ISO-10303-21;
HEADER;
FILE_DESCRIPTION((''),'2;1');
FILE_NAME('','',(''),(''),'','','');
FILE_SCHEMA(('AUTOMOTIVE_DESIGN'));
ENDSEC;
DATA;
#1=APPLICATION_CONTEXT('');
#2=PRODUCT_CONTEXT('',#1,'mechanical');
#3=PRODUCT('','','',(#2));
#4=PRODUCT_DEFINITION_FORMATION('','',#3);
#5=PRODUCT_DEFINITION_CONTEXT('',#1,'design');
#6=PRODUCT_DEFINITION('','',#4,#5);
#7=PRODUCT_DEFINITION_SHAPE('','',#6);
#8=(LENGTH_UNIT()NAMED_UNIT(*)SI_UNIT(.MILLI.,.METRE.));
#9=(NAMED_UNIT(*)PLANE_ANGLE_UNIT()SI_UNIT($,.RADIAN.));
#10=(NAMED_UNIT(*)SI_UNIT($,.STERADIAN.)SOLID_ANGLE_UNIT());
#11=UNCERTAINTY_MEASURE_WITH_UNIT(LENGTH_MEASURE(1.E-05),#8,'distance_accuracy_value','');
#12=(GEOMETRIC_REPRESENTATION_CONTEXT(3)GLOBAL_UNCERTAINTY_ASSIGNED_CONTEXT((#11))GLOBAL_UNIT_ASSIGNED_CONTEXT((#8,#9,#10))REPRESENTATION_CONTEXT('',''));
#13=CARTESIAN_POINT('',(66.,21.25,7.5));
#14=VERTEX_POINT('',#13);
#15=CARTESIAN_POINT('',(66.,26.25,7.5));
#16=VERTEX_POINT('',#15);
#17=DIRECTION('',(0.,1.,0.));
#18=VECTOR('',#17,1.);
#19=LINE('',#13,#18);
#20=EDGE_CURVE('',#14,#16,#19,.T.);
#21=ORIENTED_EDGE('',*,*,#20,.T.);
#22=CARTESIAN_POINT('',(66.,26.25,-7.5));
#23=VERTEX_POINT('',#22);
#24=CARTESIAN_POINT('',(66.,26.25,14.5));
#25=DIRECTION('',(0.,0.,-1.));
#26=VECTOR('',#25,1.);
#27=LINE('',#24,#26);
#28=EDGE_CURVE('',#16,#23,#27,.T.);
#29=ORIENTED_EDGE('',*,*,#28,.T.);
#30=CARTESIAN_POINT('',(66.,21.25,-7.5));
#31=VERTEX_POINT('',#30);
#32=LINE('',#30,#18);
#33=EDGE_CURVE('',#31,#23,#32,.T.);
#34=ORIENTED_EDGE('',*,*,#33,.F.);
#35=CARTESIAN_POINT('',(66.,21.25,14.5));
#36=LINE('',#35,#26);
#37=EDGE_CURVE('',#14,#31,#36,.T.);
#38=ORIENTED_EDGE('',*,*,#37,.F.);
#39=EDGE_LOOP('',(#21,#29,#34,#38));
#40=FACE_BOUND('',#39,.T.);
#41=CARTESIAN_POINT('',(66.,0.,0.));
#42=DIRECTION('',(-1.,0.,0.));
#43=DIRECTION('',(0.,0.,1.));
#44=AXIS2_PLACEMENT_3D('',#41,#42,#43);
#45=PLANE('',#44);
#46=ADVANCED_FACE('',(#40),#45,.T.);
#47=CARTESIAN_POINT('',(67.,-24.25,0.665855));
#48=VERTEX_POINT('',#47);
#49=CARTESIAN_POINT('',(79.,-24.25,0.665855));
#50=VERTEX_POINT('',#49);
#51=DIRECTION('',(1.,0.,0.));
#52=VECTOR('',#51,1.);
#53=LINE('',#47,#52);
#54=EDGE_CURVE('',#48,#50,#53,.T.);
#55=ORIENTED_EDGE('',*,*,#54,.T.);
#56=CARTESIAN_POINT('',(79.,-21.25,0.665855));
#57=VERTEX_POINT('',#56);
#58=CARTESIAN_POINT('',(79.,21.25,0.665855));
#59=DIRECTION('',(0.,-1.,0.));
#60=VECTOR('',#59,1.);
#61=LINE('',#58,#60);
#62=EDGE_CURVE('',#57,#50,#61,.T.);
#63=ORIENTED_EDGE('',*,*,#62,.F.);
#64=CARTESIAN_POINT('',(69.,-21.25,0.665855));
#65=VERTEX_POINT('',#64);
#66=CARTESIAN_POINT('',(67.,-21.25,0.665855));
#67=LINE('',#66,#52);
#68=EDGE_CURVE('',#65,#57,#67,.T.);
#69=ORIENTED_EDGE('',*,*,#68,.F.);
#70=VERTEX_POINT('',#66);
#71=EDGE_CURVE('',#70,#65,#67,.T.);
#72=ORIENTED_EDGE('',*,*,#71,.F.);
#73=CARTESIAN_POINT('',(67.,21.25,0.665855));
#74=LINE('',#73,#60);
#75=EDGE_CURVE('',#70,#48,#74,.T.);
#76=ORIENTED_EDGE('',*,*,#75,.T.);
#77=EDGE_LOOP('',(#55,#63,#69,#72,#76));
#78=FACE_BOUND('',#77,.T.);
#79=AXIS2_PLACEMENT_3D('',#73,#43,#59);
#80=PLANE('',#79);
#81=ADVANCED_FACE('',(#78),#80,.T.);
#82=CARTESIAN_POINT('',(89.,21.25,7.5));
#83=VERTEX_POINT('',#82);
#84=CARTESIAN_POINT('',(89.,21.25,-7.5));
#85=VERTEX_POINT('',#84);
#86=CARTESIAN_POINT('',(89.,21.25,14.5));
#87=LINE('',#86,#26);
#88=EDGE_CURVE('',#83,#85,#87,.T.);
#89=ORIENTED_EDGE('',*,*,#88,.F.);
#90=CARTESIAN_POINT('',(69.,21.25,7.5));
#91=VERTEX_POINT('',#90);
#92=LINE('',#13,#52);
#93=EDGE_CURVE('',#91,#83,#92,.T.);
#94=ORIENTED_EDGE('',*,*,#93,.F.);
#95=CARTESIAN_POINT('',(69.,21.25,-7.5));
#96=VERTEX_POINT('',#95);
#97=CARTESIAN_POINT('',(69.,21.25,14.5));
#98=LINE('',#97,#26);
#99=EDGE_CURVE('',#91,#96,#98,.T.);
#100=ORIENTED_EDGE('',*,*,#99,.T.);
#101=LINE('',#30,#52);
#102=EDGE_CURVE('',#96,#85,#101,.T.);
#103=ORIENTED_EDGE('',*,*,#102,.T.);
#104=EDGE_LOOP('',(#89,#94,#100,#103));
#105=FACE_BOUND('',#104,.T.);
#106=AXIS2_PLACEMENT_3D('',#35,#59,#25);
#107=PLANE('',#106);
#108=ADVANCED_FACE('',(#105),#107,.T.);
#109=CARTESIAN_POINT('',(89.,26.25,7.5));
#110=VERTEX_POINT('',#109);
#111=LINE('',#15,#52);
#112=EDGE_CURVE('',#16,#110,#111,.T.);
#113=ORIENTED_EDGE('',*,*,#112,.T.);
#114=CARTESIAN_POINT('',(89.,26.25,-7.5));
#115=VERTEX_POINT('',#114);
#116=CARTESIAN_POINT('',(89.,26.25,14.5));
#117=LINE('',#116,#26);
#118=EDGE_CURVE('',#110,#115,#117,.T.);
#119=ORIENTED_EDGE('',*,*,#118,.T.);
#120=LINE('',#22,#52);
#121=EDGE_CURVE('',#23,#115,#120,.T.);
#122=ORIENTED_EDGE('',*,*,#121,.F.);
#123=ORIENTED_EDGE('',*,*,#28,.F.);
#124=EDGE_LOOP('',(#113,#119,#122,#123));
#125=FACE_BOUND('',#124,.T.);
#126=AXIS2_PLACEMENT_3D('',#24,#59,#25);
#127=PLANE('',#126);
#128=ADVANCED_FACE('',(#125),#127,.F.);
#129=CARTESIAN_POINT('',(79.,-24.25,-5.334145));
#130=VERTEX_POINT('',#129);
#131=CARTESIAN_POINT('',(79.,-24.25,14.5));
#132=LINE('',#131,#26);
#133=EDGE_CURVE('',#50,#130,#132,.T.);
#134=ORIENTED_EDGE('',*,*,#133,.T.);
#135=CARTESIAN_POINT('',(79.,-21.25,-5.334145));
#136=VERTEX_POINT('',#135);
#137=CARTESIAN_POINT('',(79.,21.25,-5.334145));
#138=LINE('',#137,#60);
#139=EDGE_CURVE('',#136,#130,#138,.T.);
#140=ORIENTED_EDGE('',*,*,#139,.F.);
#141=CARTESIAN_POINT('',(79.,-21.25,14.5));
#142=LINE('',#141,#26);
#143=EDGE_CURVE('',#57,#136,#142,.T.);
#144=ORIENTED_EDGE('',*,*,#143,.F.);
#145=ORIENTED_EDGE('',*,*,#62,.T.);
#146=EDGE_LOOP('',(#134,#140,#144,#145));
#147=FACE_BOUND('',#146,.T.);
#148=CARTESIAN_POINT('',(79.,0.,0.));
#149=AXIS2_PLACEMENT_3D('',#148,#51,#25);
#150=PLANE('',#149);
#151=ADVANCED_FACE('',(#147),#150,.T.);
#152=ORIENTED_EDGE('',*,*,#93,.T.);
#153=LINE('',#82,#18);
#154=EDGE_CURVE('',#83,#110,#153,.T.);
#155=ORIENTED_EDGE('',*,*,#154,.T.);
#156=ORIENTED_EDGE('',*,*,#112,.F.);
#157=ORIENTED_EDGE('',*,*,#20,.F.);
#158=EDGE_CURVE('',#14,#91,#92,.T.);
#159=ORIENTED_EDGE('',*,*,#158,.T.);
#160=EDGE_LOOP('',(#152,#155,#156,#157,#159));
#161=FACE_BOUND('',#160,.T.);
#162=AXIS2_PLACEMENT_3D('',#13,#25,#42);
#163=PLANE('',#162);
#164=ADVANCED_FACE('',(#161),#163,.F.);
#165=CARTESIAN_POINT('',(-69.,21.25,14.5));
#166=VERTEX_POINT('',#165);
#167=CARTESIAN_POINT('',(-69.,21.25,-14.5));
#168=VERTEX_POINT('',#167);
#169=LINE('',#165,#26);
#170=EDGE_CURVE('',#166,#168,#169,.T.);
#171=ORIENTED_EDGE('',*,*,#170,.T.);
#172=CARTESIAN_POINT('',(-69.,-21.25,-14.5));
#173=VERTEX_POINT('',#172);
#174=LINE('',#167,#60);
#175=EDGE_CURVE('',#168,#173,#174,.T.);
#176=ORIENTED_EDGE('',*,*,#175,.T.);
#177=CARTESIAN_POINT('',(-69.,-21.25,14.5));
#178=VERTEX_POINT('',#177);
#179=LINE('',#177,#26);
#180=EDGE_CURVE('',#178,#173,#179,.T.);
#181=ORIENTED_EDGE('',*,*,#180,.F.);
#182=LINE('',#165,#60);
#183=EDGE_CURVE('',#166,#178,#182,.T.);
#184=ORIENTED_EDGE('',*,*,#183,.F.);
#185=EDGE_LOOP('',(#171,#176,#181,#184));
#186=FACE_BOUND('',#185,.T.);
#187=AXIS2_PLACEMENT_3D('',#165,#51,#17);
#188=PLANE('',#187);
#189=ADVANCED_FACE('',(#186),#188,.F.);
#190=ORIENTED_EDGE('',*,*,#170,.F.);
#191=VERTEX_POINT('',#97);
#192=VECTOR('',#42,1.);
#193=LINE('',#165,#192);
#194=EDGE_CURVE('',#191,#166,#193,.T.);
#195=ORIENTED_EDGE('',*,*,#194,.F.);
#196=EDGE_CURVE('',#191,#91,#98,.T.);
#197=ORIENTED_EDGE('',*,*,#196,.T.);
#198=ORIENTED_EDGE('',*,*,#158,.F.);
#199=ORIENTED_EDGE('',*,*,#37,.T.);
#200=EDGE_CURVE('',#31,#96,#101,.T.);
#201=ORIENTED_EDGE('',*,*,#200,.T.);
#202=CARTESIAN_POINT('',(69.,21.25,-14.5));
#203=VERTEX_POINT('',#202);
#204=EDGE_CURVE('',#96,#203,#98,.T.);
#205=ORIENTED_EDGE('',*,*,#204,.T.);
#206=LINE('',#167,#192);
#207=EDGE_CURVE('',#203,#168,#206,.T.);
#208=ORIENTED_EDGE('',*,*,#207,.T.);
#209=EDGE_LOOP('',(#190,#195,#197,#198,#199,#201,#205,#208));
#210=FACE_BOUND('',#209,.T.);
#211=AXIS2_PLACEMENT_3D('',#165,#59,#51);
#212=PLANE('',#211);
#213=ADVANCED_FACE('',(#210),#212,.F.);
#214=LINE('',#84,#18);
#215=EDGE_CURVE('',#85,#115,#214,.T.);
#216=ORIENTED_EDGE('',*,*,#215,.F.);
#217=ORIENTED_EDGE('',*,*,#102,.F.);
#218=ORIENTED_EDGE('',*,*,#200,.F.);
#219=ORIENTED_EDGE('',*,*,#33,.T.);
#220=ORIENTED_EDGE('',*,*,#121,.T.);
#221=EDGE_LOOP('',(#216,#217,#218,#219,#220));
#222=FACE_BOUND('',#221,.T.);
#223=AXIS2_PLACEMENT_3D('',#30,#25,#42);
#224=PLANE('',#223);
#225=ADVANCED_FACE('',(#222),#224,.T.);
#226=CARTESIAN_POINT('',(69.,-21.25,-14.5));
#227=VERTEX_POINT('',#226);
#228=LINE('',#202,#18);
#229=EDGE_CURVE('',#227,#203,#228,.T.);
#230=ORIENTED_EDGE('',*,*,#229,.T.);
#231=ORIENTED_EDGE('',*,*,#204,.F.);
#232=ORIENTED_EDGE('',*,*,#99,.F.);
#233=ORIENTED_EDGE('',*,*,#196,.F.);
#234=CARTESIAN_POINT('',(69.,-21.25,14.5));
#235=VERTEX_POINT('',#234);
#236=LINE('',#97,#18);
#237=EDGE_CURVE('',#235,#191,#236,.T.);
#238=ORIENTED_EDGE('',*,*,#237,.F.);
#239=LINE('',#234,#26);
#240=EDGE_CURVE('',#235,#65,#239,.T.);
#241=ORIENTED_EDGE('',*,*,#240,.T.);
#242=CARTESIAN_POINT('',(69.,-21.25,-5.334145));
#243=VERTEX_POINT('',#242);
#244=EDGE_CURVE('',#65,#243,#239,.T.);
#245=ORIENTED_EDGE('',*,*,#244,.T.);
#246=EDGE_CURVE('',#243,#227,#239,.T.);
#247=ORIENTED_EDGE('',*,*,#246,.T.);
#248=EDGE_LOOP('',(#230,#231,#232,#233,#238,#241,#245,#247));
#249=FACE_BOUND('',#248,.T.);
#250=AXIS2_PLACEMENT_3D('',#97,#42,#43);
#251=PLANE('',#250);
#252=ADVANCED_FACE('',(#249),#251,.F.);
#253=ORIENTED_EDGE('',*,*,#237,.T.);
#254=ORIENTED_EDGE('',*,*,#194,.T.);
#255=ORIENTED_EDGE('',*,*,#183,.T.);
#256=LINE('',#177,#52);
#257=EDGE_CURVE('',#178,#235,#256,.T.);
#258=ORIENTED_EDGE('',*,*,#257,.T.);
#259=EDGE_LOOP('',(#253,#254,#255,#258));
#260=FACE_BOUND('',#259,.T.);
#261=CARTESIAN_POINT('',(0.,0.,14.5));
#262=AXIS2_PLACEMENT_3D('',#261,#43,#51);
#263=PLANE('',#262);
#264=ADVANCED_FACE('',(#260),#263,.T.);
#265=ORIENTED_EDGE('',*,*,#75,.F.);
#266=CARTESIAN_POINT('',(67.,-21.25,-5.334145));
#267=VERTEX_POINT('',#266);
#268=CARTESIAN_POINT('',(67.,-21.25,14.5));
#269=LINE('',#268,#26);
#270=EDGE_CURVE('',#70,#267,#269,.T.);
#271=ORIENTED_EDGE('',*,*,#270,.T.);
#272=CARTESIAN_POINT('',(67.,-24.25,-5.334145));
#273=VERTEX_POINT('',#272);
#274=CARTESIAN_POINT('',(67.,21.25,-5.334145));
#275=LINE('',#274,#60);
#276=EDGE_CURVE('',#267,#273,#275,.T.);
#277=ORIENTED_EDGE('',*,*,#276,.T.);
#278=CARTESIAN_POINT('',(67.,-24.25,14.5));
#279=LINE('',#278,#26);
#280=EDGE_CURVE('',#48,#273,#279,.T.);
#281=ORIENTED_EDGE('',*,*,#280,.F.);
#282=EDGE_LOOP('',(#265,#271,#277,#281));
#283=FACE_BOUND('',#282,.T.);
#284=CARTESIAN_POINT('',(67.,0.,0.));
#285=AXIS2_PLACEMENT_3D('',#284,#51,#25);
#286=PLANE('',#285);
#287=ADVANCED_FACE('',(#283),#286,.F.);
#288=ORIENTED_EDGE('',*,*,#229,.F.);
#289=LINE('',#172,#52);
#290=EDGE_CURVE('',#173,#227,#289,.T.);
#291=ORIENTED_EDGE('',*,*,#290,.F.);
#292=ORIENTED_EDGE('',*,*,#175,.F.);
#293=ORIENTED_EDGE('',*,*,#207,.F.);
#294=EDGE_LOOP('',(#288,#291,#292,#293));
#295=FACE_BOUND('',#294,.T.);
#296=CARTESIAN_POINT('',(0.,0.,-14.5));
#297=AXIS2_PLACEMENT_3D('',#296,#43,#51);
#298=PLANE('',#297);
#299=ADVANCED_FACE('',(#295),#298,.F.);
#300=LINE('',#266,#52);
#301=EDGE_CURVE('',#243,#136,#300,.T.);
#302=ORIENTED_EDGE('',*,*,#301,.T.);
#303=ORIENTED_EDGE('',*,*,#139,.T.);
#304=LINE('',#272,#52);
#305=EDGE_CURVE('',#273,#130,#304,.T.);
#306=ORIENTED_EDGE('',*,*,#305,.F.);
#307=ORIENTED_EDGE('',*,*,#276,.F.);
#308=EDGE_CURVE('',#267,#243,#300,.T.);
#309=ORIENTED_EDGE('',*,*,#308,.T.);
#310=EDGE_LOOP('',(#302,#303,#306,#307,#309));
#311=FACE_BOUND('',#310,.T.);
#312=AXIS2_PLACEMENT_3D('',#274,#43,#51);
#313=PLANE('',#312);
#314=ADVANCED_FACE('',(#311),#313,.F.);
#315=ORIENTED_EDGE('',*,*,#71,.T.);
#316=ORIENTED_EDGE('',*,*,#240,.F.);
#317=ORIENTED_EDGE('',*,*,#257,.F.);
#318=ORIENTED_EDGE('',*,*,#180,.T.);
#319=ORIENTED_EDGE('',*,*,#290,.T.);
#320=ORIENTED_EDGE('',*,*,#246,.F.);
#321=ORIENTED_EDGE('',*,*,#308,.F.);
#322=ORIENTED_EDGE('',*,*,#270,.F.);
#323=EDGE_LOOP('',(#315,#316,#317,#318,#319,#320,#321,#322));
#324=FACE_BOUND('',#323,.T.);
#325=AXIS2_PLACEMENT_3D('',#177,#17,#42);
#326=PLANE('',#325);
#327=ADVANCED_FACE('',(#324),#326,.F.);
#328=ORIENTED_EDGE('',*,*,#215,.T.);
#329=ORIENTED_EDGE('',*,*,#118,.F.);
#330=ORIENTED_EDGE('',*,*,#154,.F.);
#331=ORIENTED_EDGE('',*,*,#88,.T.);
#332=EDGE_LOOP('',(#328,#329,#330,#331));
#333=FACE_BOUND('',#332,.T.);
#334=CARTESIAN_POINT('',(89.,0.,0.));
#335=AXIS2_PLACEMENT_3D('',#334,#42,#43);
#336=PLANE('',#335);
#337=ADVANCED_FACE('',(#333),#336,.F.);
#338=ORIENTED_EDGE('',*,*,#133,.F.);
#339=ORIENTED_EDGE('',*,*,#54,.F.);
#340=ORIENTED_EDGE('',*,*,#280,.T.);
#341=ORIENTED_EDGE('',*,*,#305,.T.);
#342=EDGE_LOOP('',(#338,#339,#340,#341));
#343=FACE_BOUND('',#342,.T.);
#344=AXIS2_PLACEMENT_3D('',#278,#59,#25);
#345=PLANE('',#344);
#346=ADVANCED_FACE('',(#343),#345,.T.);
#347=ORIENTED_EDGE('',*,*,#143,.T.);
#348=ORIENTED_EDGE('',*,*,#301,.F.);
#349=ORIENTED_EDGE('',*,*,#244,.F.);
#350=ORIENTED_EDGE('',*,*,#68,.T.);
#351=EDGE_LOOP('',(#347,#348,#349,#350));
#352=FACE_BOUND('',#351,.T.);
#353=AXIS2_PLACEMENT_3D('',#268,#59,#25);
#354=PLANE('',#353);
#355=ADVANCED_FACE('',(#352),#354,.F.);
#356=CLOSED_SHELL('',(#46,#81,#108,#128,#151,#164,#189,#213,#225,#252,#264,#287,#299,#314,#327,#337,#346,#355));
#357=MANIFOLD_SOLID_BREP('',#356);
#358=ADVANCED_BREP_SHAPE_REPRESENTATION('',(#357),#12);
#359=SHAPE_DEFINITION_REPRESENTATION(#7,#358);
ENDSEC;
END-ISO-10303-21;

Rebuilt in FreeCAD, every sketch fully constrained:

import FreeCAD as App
import Part
import Sketcher
from FreeCAD import Vector

doc = App.newDocument("Part")
body = doc.addObject("PartDesign::Body", "Body")

# Sketch on XY plane
sketch1 = body.newObject("Sketcher::SketchObject", "Sketch")
sketch1.AttachmentSupport = (doc.getObject("XY_Plane"), [""])
sketch1.MapMode = "FlatFace"
sketch1.addGeometry(Part.LineSegment(Vector(-69, 21, 0), Vector(-69, -21, 0)), False)
sketch1.addGeometry(Part.LineSegment(Vector(-69, -21, 0), Vector(69, -21, 0)), False)
sketch1.addGeometry(Part.LineSegment(Vector(69, -21, 0), Vector(69, 21, 0)), False)
sketch1.addGeometry(Part.LineSegment(Vector(69, 21, 0), Vector(-69, 21, 0)), False)
sketch1.addConstraint(Sketcher.Constraint("Coincident", 0, 2, 1, 1))
sketch1.addConstraint(Sketcher.Constraint("Coincident", 1, 2, 2, 1))
sketch1.addConstraint(Sketcher.Constraint("Coincident", 2, 2, 3, 1))
sketch1.addConstraint(Sketcher.Constraint("Coincident", 3, 2, 0, 1))
sketch1.addConstraint(Sketcher.Constraint("Vertical", 0))
sketch1.addConstraint(Sketcher.Constraint("Horizontal", 1))
sketch1.addConstraint(Sketcher.Constraint("Vertical", 2))
sketch1.addConstraint(Sketcher.Constraint("Horizontal", 3))
sketch1.addConstraint(Sketcher.Constraint("Symmetric", 0, 2, 2, 2, -1, 1))
sketch1.addConstraint(Sketcher.Constraint("DistanceX", 1, 1, 1, 2, 138.0))
sketch1.addConstraint(Sketcher.Constraint("DistanceY", 0, 2, 0, 1, 42.5))
pad1 = body.newObject("PartDesign::Pad", "Pad")
pad1.Profile = sketch1
pad1.Length = 29
pad1.Midplane = True

# Sketch on YZ plane
sketch2 = body.newObject("Sketcher::SketchObject", "Sketch001")
sketch2.AttachmentSupport = (doc.getObject("YZ_Plane"), [""])
sketch2.MapMode = "FlatFace"
sketch2.AttachmentOffset = App.Placement(Vector(0, 0, 69), App.Rotation())
sketch2.addGeometry(Part.LineSegment(Vector(26, 8, 0), Vector(21, 8, 0)), False)
sketch2.addGeometry(Part.LineSegment(Vector(21, 8, 0), Vector(21, -8, 0)), False)
sketch2.addGeometry(Part.LineSegment(Vector(21, -8, 0), Vector(26, -8, 0)), False)
sketch2.addGeometry(Part.LineSegment(Vector(26, -8, 0), Vector(26, 8, 0)), False)
sketch2.addConstraint(Sketcher.Constraint("Coincident", 0, 2, 1, 1))
sketch2.addConstraint(Sketcher.Constraint("Coincident", 1, 2, 2, 1))
sketch2.addConstraint(Sketcher.Constraint("Coincident", 2, 2, 3, 1))
sketch2.addConstraint(Sketcher.Constraint("Coincident", 3, 2, 0, 1))
sketch2.addConstraint(Sketcher.Constraint("Horizontal", 0))
sketch2.addConstraint(Sketcher.Constraint("Vertical", 1))
sketch2.addConstraint(Sketcher.Constraint("Horizontal", 2))
sketch2.addConstraint(Sketcher.Constraint("Vertical", 3))
sketch2.addConstraint(Sketcher.Constraint("DistanceX", 0, 2, 0, 1, 5.0))
sketch2.addConstraint(Sketcher.Constraint("DistanceY", 1, 2, 1, 1, 15.0))
sketch2.addConstraint(Sketcher.Constraint("DistanceY", -1, 1, 0, 2, 7.5))
sketch2.addConstraint(Sketcher.Constraint("DistanceX", -1, 1, 0, 2, 21.25))
pad2 = body.newObject("PartDesign::Pad", "Pad001")
pad2.Profile = sketch2
pad2.Type = "TwoLengths"
pad2.Length = 20
pad2.Length2 = 3

# Sketch on YZ plane
sketch3 = body.newObject("Sketcher::SketchObject", "Sketch002")
sketch3.AttachmentSupport = (doc.getObject("YZ_Plane"), [""])
sketch3.MapMode = "FlatFace"
sketch3.AttachmentOffset = App.Placement(Vector(0, 0, 69), App.Rotation())
sketch3.addGeometry(Part.LineSegment(Vector(-21.2, 0.7, 0), Vector(-24.2, 0.7, 0)), False)
sketch3.addGeometry(Part.LineSegment(Vector(-24.2, 0.7, 0), Vector(-24.2, -5.3, 0)), False)
sketch3.addGeometry(Part.LineSegment(Vector(-24.2, -5.3, 0), Vector(-21.2, -5.3, 0)), False)
sketch3.addGeometry(Part.LineSegment(Vector(-21.2, -5.3, 0), Vector(-21.2, 0.7, 0)), False)
sketch3.addConstraint(Sketcher.Constraint("Coincident", 0, 2, 1, 1))
sketch3.addConstraint(Sketcher.Constraint("Coincident", 1, 2, 2, 1))
sketch3.addConstraint(Sketcher.Constraint("Coincident", 2, 2, 3, 1))
sketch3.addConstraint(Sketcher.Constraint("Coincident", 3, 2, 0, 1))
sketch3.addConstraint(Sketcher.Constraint("Horizontal", 0))
sketch3.addConstraint(Sketcher.Constraint("Vertical", 1))
sketch3.addConstraint(Sketcher.Constraint("Horizontal", 2))
sketch3.addConstraint(Sketcher.Constraint("Vertical", 3))
sketch3.addConstraint(Sketcher.Constraint("DistanceX", 0, 2, 0, 1, 3.0))
sketch3.addConstraint(Sketcher.Constraint("DistanceY", 1, 2, 1, 1, 6.0))
sketch3.addConstraint(Sketcher.Constraint("DistanceX", 0, 2, -1, 1, 24.25))
sketch3.addConstraint(Sketcher.Constraint("DistanceY", -1, 1, 0, 2, 0.665855))
pad3 = body.newObject("PartDesign::Pad", "Pad002")
pad3.Profile = sketch3
pad3.Type = "TwoLengths"
pad3.Length = 10
pad3.Length2 = 2

doc.recompute()
